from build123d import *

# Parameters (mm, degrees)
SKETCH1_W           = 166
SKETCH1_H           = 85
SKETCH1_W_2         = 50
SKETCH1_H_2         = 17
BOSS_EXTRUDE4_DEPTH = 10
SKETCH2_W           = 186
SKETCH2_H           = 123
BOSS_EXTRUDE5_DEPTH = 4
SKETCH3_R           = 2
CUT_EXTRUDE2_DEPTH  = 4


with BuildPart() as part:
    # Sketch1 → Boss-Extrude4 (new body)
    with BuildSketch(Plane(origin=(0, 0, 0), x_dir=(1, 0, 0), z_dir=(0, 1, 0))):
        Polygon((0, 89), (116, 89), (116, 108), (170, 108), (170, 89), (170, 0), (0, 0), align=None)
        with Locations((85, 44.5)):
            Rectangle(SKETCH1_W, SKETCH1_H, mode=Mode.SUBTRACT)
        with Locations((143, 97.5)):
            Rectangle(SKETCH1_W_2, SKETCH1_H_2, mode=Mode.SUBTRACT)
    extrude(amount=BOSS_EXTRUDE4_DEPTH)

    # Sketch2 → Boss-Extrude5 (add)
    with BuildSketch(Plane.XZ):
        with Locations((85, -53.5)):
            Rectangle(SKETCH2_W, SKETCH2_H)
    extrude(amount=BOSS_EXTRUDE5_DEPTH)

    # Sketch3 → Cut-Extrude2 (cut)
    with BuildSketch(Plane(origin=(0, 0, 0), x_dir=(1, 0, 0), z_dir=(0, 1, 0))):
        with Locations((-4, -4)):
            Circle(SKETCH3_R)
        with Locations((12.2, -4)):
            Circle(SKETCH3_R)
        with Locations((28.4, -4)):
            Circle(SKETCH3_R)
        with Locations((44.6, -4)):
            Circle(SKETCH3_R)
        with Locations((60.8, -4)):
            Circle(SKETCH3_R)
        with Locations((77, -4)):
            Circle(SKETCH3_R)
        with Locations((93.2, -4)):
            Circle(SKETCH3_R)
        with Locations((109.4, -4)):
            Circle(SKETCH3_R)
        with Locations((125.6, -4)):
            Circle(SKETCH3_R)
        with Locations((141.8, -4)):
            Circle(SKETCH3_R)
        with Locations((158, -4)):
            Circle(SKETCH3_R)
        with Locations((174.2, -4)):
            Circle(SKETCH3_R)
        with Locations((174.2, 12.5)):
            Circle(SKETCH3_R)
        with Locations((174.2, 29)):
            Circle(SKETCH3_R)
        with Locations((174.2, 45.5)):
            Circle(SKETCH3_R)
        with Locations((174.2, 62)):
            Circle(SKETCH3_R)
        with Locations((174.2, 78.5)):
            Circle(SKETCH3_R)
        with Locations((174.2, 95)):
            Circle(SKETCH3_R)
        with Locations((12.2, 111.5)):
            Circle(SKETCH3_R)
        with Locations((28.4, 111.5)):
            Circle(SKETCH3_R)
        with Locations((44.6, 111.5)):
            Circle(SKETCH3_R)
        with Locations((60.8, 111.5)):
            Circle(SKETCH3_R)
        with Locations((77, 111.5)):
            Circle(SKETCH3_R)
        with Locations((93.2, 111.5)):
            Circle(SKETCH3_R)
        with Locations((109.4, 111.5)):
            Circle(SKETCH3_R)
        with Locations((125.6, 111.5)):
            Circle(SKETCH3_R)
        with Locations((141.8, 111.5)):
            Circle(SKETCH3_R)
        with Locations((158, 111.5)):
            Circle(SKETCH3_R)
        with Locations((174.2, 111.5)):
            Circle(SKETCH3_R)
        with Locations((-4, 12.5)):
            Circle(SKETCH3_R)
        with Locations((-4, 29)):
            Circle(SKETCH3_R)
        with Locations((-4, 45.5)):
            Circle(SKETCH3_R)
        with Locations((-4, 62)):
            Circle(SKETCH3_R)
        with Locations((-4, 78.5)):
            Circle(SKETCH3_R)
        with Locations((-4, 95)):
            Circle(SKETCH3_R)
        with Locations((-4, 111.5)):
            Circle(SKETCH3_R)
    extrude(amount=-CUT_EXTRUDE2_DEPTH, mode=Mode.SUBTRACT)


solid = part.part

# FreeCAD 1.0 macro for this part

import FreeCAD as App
import Part
import Sketcher
Q = App.Units.Quantity


def add_polygon(sketch, points):
    """Adds a closed chain of lines whose ends are joined by coincident constraints."""
    first, n = sketch.GeometryCount, len(points)
    for a, b in zip(points, points[1:] + points[:1]):
        sketch.addGeometry(Part.LineSegment(App.Vector(*a, 0), App.Vector(*b, 0)), False)
    for i in range(n):
        sketch.addConstraint(Sketcher.Constraint("Coincident", first + i, 2, first + (i + 1) % n, 1))

doc = App.newDocument("Part")
params = doc.addObject("Spreadsheet::Sheet", "Params")
for row, (alias, value) in enumerate([
    ("sketch1_width", "116 mm"),
    ("sketch1_width2", "170 mm"),
    ("sketch1_width3", "166 mm"),
    ("sketch1_width4", "50 mm"),
    ("sketch1_height", "89 mm"),
    ("pad1_length", "10 mm"),
    ("sketch2_width", "186 mm"),
    ("sketch2_height", "123 mm"),
    ("pad2_length", "4 mm"),
    ("sketch3_diameter", "4 mm"),
    ("pocket1_length", "4 mm"),
], start=1):
    params.set(f"A{row}", alias)
    params.set(f"B{row}", "=" + value)
    params.setAlias(f"B{row}", alias)

body = doc.addObject("PartDesign::Body", "Body")

sketch1 = doc.addObject("Sketcher::SketchObject", "Sketch")
body.addObject(sketch1)
sketch1.AttachmentSupport = (doc.XZ_Plane, [""])
sketch1.MapMode = "FlatFace"
add_polygon(sketch1, [(116, -89), (0, -89), (0, 0), (170, 0), (170, -108), (116, -108)])
add_polygon(sketch1, [(2, -2), (2, -87), (168, -87), (168, -2)])
add_polygon(sketch1, [(118, -89), (118, -106), (168, -106), (168, -89)])
sketch1.addConstraint([
    Sketcher.Constraint("Horizontal", 0),
    Sketcher.Constraint("Vertical", 1),
    Sketcher.Constraint("Horizontal", 2),
    Sketcher.Constraint("Vertical", 3),
    Sketcher.Constraint("Horizontal", 4),
    Sketcher.Constraint("Vertical", 5),
    Sketcher.Constraint("Vertical", 6),
    Sketcher.Constraint("Horizontal", 7),
    Sketcher.Constraint("Vertical", 8),
    Sketcher.Constraint("Horizontal", 9),
    Sketcher.Constraint("Vertical", 10),
    Sketcher.Constraint("Horizontal", 11),
    Sketcher.Constraint("Vertical", 12),
    Sketcher.Constraint("Horizontal", 13),
    Sketcher.Constraint("Coincident", 1, 2, -1, 1),
    Sketcher.Constraint("Horizontal", 5, 2, 12, 2),
    Sketcher.Constraint("Vertical", 8, 2, 11, 2),
    Sketcher.Constraint("DistanceX", 0, 2, 0, 1, Q("116 mm")),
    Sketcher.Constraint("DistanceX", 2, 1, 2, 2, Q("170 mm")),
    Sketcher.Constraint("DistanceX", 7, 1, 7, 2, Q("166 mm")),
    Sketcher.Constraint("DistanceX", 11, 1, 11, 2, Q("50 mm")),
    Sketcher.Constraint("DistanceY", 1, 1, 1, 2, Q("89 mm")),
    Sketcher.Constraint("DistanceY", 3, 2, 3, 1, Q("108 mm")),
    Sketcher.Constraint("DistanceY", 6, 2, 6, 1, Q("85 mm")),
    Sketcher.Constraint("DistanceY", 10, 2, 10, 1, Q("17 mm")),
    Sketcher.Constraint("DistanceX", -1, 1, 6, 2, Q("2 mm")),
    Sketcher.Constraint("DistanceY", 6, 2, -1, 1, Q("87 mm")),
])
sketch1.setExpression("Constraints[31]", "Params.sketch1_width")
sketch1.setExpression("Constraints[32]", "Params.sketch1_width2")
sketch1.setExpression("Constraints[33]", "Params.sketch1_width3")
sketch1.setExpression("Constraints[34]", "Params.sketch1_width4")
sketch1.setExpression("Constraints[35]", "Params.sketch1_height")
pad1 = doc.addObject("PartDesign::Pad", "Pad")
body.addObject(pad1)
pad1.Profile = sketch1
pad1.setExpression("Length", "Params.pad1_length")
pad1.Reversed = True

sketch2 = doc.addObject("Sketcher::SketchObject", "Sketch001")
body.addObject(sketch2)
sketch2.AttachmentSupport = (doc.XZ_Plane, [""])
sketch2.MapMode = "FlatFace"
add_polygon(sketch2, [(-8, 8), (-8, -115), (178, -115), (178, 8)])
sketch2.addConstraint([
    Sketcher.Constraint("Vertical", 0),
    Sketcher.Constraint("Horizontal", 1),
    Sketcher.Constraint("Vertical", 2),
    Sketcher.Constraint("Horizontal", 3),
    Sketcher.Constraint("DistanceX", 1, 1, 1, 2, Q("186 mm")),
    Sketcher.Constraint("DistanceY", 0, 2, 0, 1, Q("123 mm")),
    Sketcher.Constraint("DistanceX", 0, 2, -1, 1, Q("8 mm")),
    Sketcher.Constraint("DistanceY", 0, 2, -1, 1, Q("115 mm")),
])
sketch2.setExpression("Constraints[8]", "Params.sketch2_width")
sketch2.setExpression("Constraints[9]", "Params.sketch2_height")
pad2 = doc.addObject("PartDesign::Pad", "Pad001")
body.addObject(pad2)
pad2.Profile = sketch2
pad2.setExpression("Length", "Params.pad2_length")

sketch3 = doc.addObject("Sketcher::SketchObject", "Sketch002")
body.addObject(sketch3)
sketch3.AttachmentSupport = (doc.XZ_Plane, [""])
sketch3.MapMode = "FlatFace"
sketch3.addGeometry([
    Part.Circle(App.Vector(-4, 4, 0), App.Vector(0, 0, 1), 2),
    Part.Circle(App.Vector(12.2, 4, 0), App.Vector(0, 0, 1), 2),
    Part.Circle(App.Vector(28.4, 4, 0), App.Vector(0, 0, 1), 2),
    Part.Circle(App.Vector(44.6, 4, 0), App.Vector(0, 0, 1), 2),
    Part.Circle(App.Vector(60.8, 4, 0), App.Vector(0, 0, 1), 2),
    Part.Circle(App.Vector(77, 4, 0), App.Vector(0, 0, 1), 2),
    Part.Circle(App.Vector(93.2, 4, 0), App.Vector(0, 0, 1), 2),
    Part.Circle(App.Vector(109.4, 4, 0), App.Vector(0, 0, 1), 2),
    Part.Circle(App.Vector(125.6, 4, 0), App.Vector(0, 0, 1), 2),
    Part.Circle(App.Vector(141.8, 4, 0), App.Vector(0, 0, 1), 2),
    Part.Circle(App.Vector(158, 4, 0), App.Vector(0, 0, 1), 2),
    Part.Circle(App.Vector(174.2, 4, 0), App.Vector(0, 0, 1), 2),
    Part.Circle(App.Vector(174.2, -12.5, 0), App.Vector(0, 0, 1), 2),
    Part.Circle(App.Vector(174.2, -29, 0), App.Vector(0, 0, 1), 2),
    Part.Circle(App.Vector(174.2, -45.5, 0), App.Vector(0, 0, 1), 2),
    Part.Circle(App.Vector(174.2, -62, 0), App.Vector(0, 0, 1), 2),
    Part.Circle(App.Vector(174.2, -78.5, 0), App.Vector(0, 0, 1), 2),
    Part.Circle(App.Vector(174.2, -95, 0), App.Vector(0, 0, 1), 2),
    Part.Circle(App.Vector(12.2, -111.5, 0), App.Vector(0, 0, 1), 2),
    Part.Circle(App.Vector(28.4, -111.5, 0), App.Vector(0, 0, 1), 2),
    Part.Circle(App.Vector(44.6, -111.5, 0), App.Vector(0, 0, 1), 2),
    Part.Circle(App.Vector(60.8, -111.5, 0), App.Vector(0, 0, 1), 2),
    Part.Circle(App.Vector(77, -111.5, 0), App.Vector(0, 0, 1), 2),
    Part.Circle(App.Vector(93.2, -111.5, 0), App.Vector(0, 0, 1), 2),
    Part.Circle(App.Vector(109.4, -111.5, 0), App.Vector(0, 0, 1), 2),
    Part.Circle(App.Vector(125.6, -111.5, 0), App.Vector(0, 0, 1), 2),
    Part.Circle(App.Vector(141.8, -111.5, 0), App.Vector(0, 0, 1), 2),
    Part.Circle(App.Vector(158, -111.5, 0), App.Vector(0, 0, 1), 2),
    Part.Circle(App.Vector(174.2, -111.5, 0), App.Vector(0, 0, 1), 2),
    Part.Circle(App.Vector(-4, -12.5, 0), App.Vector(0, 0, 1), 2),
    Part.Circle(App.Vector(-4, -29, 0), App.Vector(0, 0, 1), 2),
    Part.Circle(App.Vector(-4, -45.5, 0), App.Vector(0, 0, 1), 2),
    Part.Circle(App.Vector(-4, -62, 0), App.Vector(0, 0, 1), 2),
    Part.Circle(App.Vector(-4, -78.5, 0), App.Vector(0, 0, 1), 2),
    Part.Circle(App.Vector(-4, -95, 0), App.Vector(0, 0, 1), 2),
    Part.Circle(App.Vector(-4, -111.5, 0), App.Vector(0, 0, 1), 2),
], False)
sketch3.addConstraint([
    Sketcher.Constraint("Equal", 0, 1),
    Sketcher.Constraint("Equal", 1, 2),
    Sketcher.Constraint("Equal", 2, 3),
    Sketcher.Constraint("Equal", 3, 4),
    Sketcher.Constraint("Equal", 4, 5),
    Sketcher.Constraint("Equal", 5, 6),
    Sketcher.Constraint("Equal", 6, 7),
    Sketcher.Constraint("Equal", 7, 8),
    Sketcher.Constraint("Equal", 8, 9),
    Sketcher.Constraint("Equal", 9, 10),
    Sketcher.Constraint("Equal", 10, 11),
    Sketcher.Constraint("Equal", 11, 12),
    Sketcher.Constraint("Equal", 12, 13),
    Sketcher.Constraint("Equal", 13, 14),
    Sketcher.Constraint("Equal", 14, 15),
    Sketcher.Constraint("Equal", 15, 16),
    Sketcher.Constraint("Equal", 16, 17),
    Sketcher.Constraint("Equal", 17, 18),
    Sketcher.Constraint("Equal", 18, 19),
    Sketcher.Constraint("Equal", 19, 20),
    Sketcher.Constraint("Equal", 20, 21),
    Sketcher.Constraint("Equal", 21, 22),
    Sketcher.Constraint("Equal", 22, 23),
    Sketcher.Constraint("Equal", 23, 24),
    Sketcher.Constraint("Equal", 24, 25),
    Sketcher.Constraint("Equal", 25, 26),
    Sketcher.Constraint("Equal", 26, 27),
    Sketcher.Constraint("Equal", 27, 28),
    Sketcher.Constraint("Equal", 28, 29),
    Sketcher.Constraint("Equal", 29, 30),
    Sketcher.Constraint("Equal", 30, 31),
    Sketcher.Constraint("Equal", 31, 32),
    Sketcher.Constraint("Equal", 32, 33),
    Sketcher.Constraint("Equal", 33, 34),
    Sketcher.Constraint("Equal", 34, 35),
    Sketcher.Constraint("Horizontal", 0, 3, 1, 3),
    Sketcher.Constraint("Horizontal", 1, 3, 2, 3),
    Sketcher.Constraint("Horizontal", 2, 3, 3, 3),
    Sketcher.Constraint("Horizontal", 3, 3, 4, 3),
    Sketcher.Constraint("Horizontal", 4, 3, 5, 3),
    Sketcher.Constraint("Horizontal", 5, 3, 6, 3),
    Sketcher.Constraint("Horizontal", 6, 3, 7, 3),
    Sketcher.Constraint("Horizontal", 7, 3, 8, 3),
    Sketcher.Constraint("Horizontal", 8, 3, 9, 3),
    Sketcher.Constraint("Horizontal", 9, 3, 10, 3),
    Sketcher.Constraint("Horizontal", 10, 3, 11, 3),
    Sketcher.Constraint("Horizontal", 18, 3, 19, 3),
    Sketcher.Constraint("Horizontal", 19, 3, 20, 3),
    Sketcher.Constraint("Horizontal", 20, 3, 21, 3),
    Sketcher.Constraint("Horizontal", 21, 3, 22, 3),
    Sketcher.Constraint("Horizontal", 22, 3, 23, 3),
    Sketcher.Constraint("Horizontal", 23, 3, 24, 3),
    Sketcher.Constraint("Horizontal", 24, 3, 25, 3),
    Sketcher.Constraint("Horizontal", 25, 3, 26, 3),
    Sketcher.Constraint("Horizontal", 26, 3, 27, 3),
    Sketcher.Constraint("Horizontal", 27, 3, 28, 3),
    Sketcher.Constraint("Horizontal", 12, 3, 29, 3),
    Sketcher.Constraint("Horizontal", 13, 3, 30, 3),
    Sketcher.Constraint("Horizontal", 14, 3, 31, 3),
    Sketcher.Constraint("Horizontal", 15, 3, 32, 3),
    Sketcher.Constraint("Horizontal", 16, 3, 33, 3),
    Sketcher.Constraint("Horizontal", 17, 3, 34, 3),
    Sketcher.Constraint("Horizontal", 28, 3, 35, 3),
    Sketcher.Constraint("Vertical", 11, 3, 12, 3),
    Sketcher.Constraint("Vertical", 12, 3, 13, 3),
    Sketcher.Constraint("Vertical", 13, 3, 14, 3),
    Sketcher.Constraint("Vertical", 14, 3, 15, 3),
    Sketcher.Constraint("Vertical", 15, 3, 16, 3),
    Sketcher.Constraint("Vertical", 16, 3, 17, 3),
    Sketcher.Constraint("Vertical", 1, 3, 18, 3),
    Sketcher.Constraint("Vertical", 2, 3, 19, 3),
    Sketcher.Constraint("Vertical", 3, 3, 20, 3),
    Sketcher.Constraint("Vertical", 4, 3, 21, 3),
    Sketcher.Constraint("Vertical", 5, 3, 22, 3),
    Sketcher.Constraint("Vertical", 6, 3, 23, 3),
    Sketcher.Constraint("Vertical", 7, 3, 24, 3),
    Sketcher.Constraint("Vertical", 8, 3, 25, 3),
    Sketcher.Constraint("Vertical", 9, 3, 26, 3),
    Sketcher.Constraint("Vertical", 10, 3, 27, 3),
    Sketcher.Constraint("Vertical", 17, 3, 28, 3),
    Sketcher.Constraint("Vertical", 0, 3, 29, 3),
    Sketcher.Constraint("Vertical", 29, 3, 30, 3),
    Sketcher.Constraint("Vertical", 30, 3, 31, 3),
    Sketcher.Constraint("Vertical", 31, 3, 32, 3),
    Sketcher.Constraint("Vertical", 32, 3, 33, 3),
    Sketcher.Constraint("Vertical", 33, 3, 34, 3),
    Sketcher.Constraint("Vertical", 34, 3, 35, 3),
    Sketcher.Constraint("Diameter", 0, Q("4 mm")),
    Sketcher.Constraint("DistanceX", 0, 3, -1, 1, Q("4 mm")),
    Sketcher.Constraint("DistanceY", -1, 1, 0, 3, Q("4 mm")),
    Sketcher.Constraint("DistanceX", -1, 1, 5, 3, Q("77 mm")),
    Sketcher.Constraint("DistanceX", -1, 1, 10, 3, Q("158 mm")),
    Sketcher.Constraint("DistanceY", 13, 3, -1, 1, Q("29 mm")),
    Sketcher.Constraint("DistanceY", 15, 3, -1, 1, Q("62 mm")),
    Sketcher.Constraint("DistanceY", 17, 3, -1, 1, Q("95 mm")),
    Sketcher.Constraint("DistanceX", 1, 3, 6, 3, Q("81 mm")),
    Sketcher.Constraint("DistanceX", 2, 3, 7, 3, Q("81 mm")),
    Sketcher.Constraint("DistanceX", 3, 3, 8, 3, Q("81 mm")),
    Sketcher.Constraint("DistanceX", 4, 3, 9, 3, Q("81 mm")),
    Sketcher.Constraint("DistanceX", 6, 3, 11, 3, Q("81 mm")),
    Sketcher.Constraint("DistanceY", 14, 3, 12, 3, Q("33 mm")),
    Sketcher.Constraint("DistanceY", 16, 3, 14, 3, Q("33 mm")),
    Sketcher.Constraint("DistanceY", 25, 3, 16, 3, Q("33 mm")),
    Sketcher.Constraint("DistanceX", -1, 1, 1, 3, Q("12.2 mm")),
    Sketcher.Constraint("DistanceX", -1, 1, 2, 3, Q("28.4 mm")),
    Sketcher.Constraint("DistanceX", -1, 1, 3, 3, Q("44.6 mm")),
    Sketcher.Constraint("DistanceX", -1, 1, 4, 3, Q("60.8 mm")),
    Sketcher.Constraint("DistanceY", 12, 3, -1, 1, Q("12.5 mm")),
])
sketch3.setExpression("Constraints[87]", "Params.sketch3_diameter")
pocket1 = doc.addObject("PartDesign::Pocket", "Pocket")
body.addObject(pocket1)
pocket1.Profile = sketch3
pocket1.setExpression("Length", "Params.pocket1_length")
pocket1.Reversed = True

doc.recompute()
